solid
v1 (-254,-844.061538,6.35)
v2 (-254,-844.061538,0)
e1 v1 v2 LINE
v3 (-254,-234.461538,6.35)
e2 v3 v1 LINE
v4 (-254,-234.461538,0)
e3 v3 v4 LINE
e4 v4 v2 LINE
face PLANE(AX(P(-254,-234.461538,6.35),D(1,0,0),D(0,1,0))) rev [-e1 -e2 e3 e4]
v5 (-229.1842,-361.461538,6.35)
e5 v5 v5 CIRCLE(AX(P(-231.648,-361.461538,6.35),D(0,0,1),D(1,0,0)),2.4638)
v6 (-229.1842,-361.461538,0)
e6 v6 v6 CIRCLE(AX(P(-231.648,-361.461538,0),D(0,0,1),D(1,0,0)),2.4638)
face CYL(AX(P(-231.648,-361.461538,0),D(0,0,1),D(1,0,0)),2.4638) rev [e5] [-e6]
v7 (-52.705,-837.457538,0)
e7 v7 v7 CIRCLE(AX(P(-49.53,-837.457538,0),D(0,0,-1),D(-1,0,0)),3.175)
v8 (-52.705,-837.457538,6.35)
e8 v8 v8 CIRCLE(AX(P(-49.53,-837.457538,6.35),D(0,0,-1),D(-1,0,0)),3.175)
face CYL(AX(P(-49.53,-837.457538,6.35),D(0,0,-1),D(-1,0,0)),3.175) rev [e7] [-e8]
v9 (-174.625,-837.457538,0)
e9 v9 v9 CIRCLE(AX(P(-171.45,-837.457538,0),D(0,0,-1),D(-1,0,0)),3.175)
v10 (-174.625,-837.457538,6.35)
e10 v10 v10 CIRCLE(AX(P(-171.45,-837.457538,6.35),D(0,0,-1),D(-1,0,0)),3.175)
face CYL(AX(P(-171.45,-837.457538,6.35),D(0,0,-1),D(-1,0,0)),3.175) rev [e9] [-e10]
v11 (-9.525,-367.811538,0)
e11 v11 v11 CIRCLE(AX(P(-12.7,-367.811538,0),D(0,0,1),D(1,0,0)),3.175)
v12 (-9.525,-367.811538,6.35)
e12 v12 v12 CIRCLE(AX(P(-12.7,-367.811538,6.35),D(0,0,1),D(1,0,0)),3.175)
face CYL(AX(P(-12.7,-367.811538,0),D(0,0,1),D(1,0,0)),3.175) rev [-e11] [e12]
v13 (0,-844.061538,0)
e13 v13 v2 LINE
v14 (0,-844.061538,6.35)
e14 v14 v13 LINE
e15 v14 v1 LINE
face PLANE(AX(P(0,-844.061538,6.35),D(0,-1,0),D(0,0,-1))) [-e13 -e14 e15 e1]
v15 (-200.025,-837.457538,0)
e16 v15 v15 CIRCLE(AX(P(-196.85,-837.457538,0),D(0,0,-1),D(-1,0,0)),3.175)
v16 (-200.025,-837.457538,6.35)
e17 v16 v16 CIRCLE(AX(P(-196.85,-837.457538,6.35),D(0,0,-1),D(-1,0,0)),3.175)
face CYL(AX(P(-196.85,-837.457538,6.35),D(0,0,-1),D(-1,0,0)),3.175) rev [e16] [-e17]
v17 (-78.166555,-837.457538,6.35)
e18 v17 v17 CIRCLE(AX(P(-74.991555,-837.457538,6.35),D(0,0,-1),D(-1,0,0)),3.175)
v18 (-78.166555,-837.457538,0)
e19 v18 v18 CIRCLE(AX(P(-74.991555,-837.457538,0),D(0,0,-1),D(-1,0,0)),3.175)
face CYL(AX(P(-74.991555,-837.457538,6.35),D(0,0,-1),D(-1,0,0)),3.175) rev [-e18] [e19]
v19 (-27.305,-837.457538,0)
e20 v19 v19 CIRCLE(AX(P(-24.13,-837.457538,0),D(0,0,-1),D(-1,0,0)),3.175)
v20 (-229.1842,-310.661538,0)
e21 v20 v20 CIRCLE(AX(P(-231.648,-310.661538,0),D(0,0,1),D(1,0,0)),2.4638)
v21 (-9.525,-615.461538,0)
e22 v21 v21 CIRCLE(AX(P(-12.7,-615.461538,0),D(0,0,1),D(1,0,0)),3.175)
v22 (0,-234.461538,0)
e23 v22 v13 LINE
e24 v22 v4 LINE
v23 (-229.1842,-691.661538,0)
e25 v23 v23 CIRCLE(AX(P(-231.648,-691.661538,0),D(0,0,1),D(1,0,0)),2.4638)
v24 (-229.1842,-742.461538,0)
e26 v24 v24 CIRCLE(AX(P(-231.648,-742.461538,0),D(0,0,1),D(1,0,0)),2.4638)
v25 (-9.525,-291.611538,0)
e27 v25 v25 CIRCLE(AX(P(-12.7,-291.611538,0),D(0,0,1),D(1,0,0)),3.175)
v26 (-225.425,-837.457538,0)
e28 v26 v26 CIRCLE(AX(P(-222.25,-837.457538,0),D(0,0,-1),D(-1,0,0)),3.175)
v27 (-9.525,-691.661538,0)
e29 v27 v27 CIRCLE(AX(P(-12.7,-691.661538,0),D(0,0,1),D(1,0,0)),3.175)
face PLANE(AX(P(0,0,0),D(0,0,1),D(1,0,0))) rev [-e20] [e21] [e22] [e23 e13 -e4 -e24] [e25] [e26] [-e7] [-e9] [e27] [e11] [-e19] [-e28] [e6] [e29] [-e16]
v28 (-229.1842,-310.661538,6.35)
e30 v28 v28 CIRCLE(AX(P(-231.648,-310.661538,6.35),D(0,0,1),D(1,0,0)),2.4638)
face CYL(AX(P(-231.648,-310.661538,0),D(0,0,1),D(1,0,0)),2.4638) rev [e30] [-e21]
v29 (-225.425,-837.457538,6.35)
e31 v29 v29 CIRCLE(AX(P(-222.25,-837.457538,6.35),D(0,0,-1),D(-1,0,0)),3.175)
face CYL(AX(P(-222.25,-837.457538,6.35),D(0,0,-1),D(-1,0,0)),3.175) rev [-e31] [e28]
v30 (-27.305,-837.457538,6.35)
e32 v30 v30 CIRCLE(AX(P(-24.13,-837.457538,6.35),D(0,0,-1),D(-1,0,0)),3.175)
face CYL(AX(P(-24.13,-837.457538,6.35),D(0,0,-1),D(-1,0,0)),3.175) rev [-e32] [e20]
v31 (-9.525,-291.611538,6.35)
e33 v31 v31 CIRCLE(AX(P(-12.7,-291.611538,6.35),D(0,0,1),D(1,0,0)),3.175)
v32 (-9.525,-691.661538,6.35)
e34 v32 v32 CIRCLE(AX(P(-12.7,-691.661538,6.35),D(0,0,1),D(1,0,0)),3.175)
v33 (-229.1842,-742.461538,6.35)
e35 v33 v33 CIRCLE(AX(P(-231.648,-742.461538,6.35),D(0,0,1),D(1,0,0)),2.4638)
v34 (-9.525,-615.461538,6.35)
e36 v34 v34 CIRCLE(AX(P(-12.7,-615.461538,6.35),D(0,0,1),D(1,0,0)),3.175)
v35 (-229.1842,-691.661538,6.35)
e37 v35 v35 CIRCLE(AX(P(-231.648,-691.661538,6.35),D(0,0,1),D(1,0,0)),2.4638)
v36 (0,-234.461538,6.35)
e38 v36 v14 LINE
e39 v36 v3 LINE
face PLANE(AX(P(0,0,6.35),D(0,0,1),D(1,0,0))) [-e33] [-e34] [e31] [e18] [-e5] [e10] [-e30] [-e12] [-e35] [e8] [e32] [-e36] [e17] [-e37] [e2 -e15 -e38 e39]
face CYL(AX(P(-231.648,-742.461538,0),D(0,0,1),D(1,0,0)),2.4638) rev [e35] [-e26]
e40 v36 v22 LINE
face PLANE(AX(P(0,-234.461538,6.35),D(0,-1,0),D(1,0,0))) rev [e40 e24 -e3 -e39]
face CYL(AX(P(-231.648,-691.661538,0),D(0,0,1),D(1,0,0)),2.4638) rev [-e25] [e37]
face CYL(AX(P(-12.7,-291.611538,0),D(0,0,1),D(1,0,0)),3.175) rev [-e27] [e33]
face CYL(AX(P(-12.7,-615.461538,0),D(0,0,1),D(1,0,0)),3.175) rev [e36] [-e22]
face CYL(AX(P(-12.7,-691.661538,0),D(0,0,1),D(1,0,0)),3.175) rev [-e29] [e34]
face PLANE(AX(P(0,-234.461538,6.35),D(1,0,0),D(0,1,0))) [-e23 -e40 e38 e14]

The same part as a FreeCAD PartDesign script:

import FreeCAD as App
import Part
import Sketcher
Q = App.Units.Quantity


def add_polygon(sketch, points):
    """Adds a closed chain of lines whose ends are joined by coincident constraints."""
    first, n = sketch.GeometryCount, len(points)
    for a, b in zip(points, points[1:] + points[:1]):
        sketch.addGeometry(Part.LineSegment(App.Vector(*a, 0), App.Vector(*b, 0)), False)
    for i in range(n):
        sketch.addConstraint(Sketcher.Constraint("Coincident", first + i, 2, first + (i + 1) % n, 1))

doc = App.newDocument("Part")
params = doc.addObject("Spreadsheet::Sheet", "Params")
for row, (alias, value) in enumerate([
    ("sketch1_width", "10 in"),
    ("sketch1_height", "24 in"),
    ("pad1_length", "0.25 in"),
    ("sketch2_diameter", "0.194 in"),
    ("sketch3_diameter", "0.25 in"),
    ("pocket2_length", "0.25 in"),
    ("sketch4_diameter", "0.25 in"),
    ("pocket3_length", "0.25 in"),
], start=1):
    params.set(f"A{row}", alias)
    params.set(f"B{row}", "=" + value)
    params.setAlias(f"B{row}", alias)

body = doc.addObject("PartDesign::Body", "Body")

sketch1 = doc.addObject("Sketcher::SketchObject", "Sketch")
body.addObject(sketch1)
sketch1.AttachmentSupport = (doc.XY_Plane, [""])
sketch1.MapMode = "FlatFace"
add_polygon(sketch1, [(-254, -234), (-254, -844), (0, -844), (0, -234)])
sketch1.addConstraint([
    Sketcher.Constraint("Vertical", 0),
    Sketcher.Constraint("Horizontal", 1),
    Sketcher.Constraint("Vertical", 2),
    Sketcher.Constraint("Horizontal", 3),
    Sketcher.Constraint("PointOnObject", 1, 2, -2),
    Sketcher.Constraint("DistanceX", 1, 1, 1, 2, Q("10 in")),
    Sketcher.Constraint("DistanceY", 0, 2, 0, 1, Q("24 in")),
    Sketcher.Constraint("DistanceY", 0, 2, -1, 1, Q("844.061538 mm")),
])
sketch1.setExpression("Constraints[9]", "Params.sketch1_width")
sketch1.setExpression("Constraints[10]", "Params.sketch1_height")
pad1 = doc.addObject("PartDesign::Pad", "Pad")
body.addObject(pad1)
pad1.Profile = sketch1
pad1.setExpression("Length", "Params.pad1_length")

sketch2 = doc.addObject("Sketcher::SketchObject", "Sketch001")
body.addObject(sketch2)
sketch2.AttachmentSupport = (doc.XY_Plane, [""])
sketch2.MapMode = "FlatFace"
sketch2.AttachmentOffset = App.Placement(App.Vector(0, 0, 0.25 * 25.4), App.Rotation())
sketch2.addGeometry([
    Part.Circle(App.Vector(-231.6, -310.7, 0), App.Vector(0, 0, 1), 2.5),
    Part.Circle(App.Vector(-231.6, -361.5, 0), App.Vector(0, 0, 1), 2.5),
    Part.Circle(App.Vector(-231.6, -691.7, 0), App.Vector(0, 0, 1), 2.5),
    Part.Circle(App.Vector(-231.6, -742.5, 0), App.Vector(0, 0, 1), 2.5),
], False)
sketch2.addConstraint([
    Sketcher.Constraint("Equal", 0, 1),
    Sketcher.Constraint("Equal", 1, 2),
    Sketcher.Constraint("Equal", 2, 3),
    Sketcher.Constraint("Vertical", 0, 3, 1, 3),
    Sketcher.Constraint("Vertical", 1, 3, 2, 3),
    Sketcher.Constraint("Vertical", 2, 3, 3, 3),
    Sketcher.Constraint("Diameter", 0, Q("0.194 in")),
    Sketcher.Constraint("DistanceY", 1, 3, 0, 3, Q("2 in")),
    Sketcher.Constraint("DistanceY", 2, 3, 1, 3, Q("13 in")),
    Sketcher.Constraint("DistanceY", 3, 3, 2, 3, Q("2 in")),
    Sketcher.Constraint("DistanceX", 0, 3, -1, 1, Q("9.12 in")),
    Sketcher.Constraint("DistanceY", 0, 3, -1, 1, Q("310.661538 mm")),
])
sketch2.setExpression("Constraints[6]", "Params.sketch2_diameter")
pocket1 = doc.addObject("PartDesign::Pocket", "Pocket")
body.addObject(pocket1)
pocket1.Profile = sketch2
pocket1.Type = "ThroughAll"

sketch3 = doc.addObject("Sketcher::SketchObject", "Sketch002")
body.addObject(sketch3)
sketch3.AttachmentSupport = (doc.XY_Plane, [""])
sketch3.MapMode = "FlatFace"
sketch3.addGeometry([
    Part.Circle(App.Vector(-24.1, -837.5, 0), App.Vector(0, 0, 1), 3.2),
    Part.Circle(App.Vector(-49.5, -837.5, 0), App.Vector(0, 0, 1), 3.2),
    Part.Circle(App.Vector(-75, -837.5, 0), App.Vector(0, 0, 1), 3.2),
    Part.Circle(App.Vector(-196.8, -837.5, 0), App.Vector(0, 0, 1), 3.2),
    Part.Circle(App.Vector(-171.4, -837.5, 0), App.Vector(0, 0, 1), 3.2),
    Part.Circle(App.Vector(-222.2, -837.5, 0), App.Vector(0, 0, 1), 3.2),
], False)
sketch3.addConstraint([
    Sketcher.Constraint("Equal", 0, 1),
    Sketcher.Constraint("Equal", 1, 2),
    Sketcher.Constraint("Equal", 2, 3),
    Sketcher.Constraint("Equal", 3, 4),
    Sketcher.Constraint("Equal", 4, 5),
    Sketcher.Constraint("Horizontal", 0, 3, 1, 3),
    Sketcher.Constraint("Horizontal", 1, 3, 2, 3),
    Sketcher.Constraint("Horizontal", 2, 3, 3, 3),
    Sketcher.Constraint("Horizontal", 3, 3, 4, 3),
    Sketcher.Constraint("Horizontal", 4, 3, 5, 3),
    Sketcher.Constraint("Diameter", 0, Q("0.25 in")),
    Sketcher.Constraint("DistanceX", 1, 3, 0, 3, Q("1 in")),
    Sketcher.Constraint("DistanceX", 3, 3, 4, 3, Q("1 in")),
    Sketcher.Constraint("DistanceX", 5, 3, 3, 3, Q("1 in")),
    Sketcher.Constraint("DistanceX", 3, 3, 1, 3, Q("5.8 in")),
    Sketcher.Constraint("DistanceX", 0, 3, -1, 1, Q("0.95 in")),
    Sketcher.Constraint("DistanceY", 0, 3, -1, 1, Q("837.457538 mm")),
    Sketcher.Constraint("DistanceX", 2, 3, -1, 1, Q("74.991555 mm")),
])
sketch3.setExpression("Constraints[10]", "Params.sketch3_diameter")
pocket2 = doc.addObject("PartDesign::Pocket", "Pocket001")
body.addObject(pocket2)
pocket2.Profile = sketch3
pocket2.setExpression("Length", "Params.pocket2_length")
pocket2.Reversed = True

sketch4 = doc.addObject("Sketcher::SketchObject", "Sketch003")
body.addObject(sketch4)
sketch4.AttachmentSupport = (doc.XY_Plane, [""])
sketch4.MapMode = "FlatFace"
sketch4.AttachmentOffset = App.Placement(App.Vector(0, 0, 0.25 * 25.4), App.Rotation())
sketch4.addGeometry([
    Part.Circle(App.Vector(-12.7, -291.6, 0), App.Vector(0, 0, 1), 3.2),
    Part.Circle(App.Vector(-12.7, -367.8, 0), App.Vector(0, 0, 1), 3.2),
    Part.Circle(App.Vector(-12.7, -691.7, 0), App.Vector(0, 0, 1), 3.2),
    Part.Circle(App.Vector(-12.7, -615.5, 0), App.Vector(0, 0, 1), 3.2),
], False)
sketch4.addConstraint([
    Sketcher.Constraint("Equal", 0, 1),
    Sketcher.Constraint("Equal", 1, 2),
    Sketcher.Constraint("Equal", 2, 3),
    Sketcher.Constraint("Vertical", 0, 3, 1, 3),
    Sketcher.Constraint("Vertical", 1, 3, 2, 3),
    Sketcher.Constraint("Vertical", 2, 3, 3, 3),
    Sketcher.Constraint("Diameter", 0, Q("0.25 in")),
    Sketcher.Constraint("DistanceY", 1, 3, 0, 3, Q("3 in")),
    Sketcher.Constraint("DistanceY", 2, 3, 3, 3, Q("3 in")),
    Sketcher.Constraint("DistanceX", 0, 3, -1, 1, Q("0.5 in")),
    Sketcher.Constraint("DistanceY", 2, 3, 1, 3, Q("12.75 in")),
    Sketcher.Constraint("DistanceY", 0, 3, -1, 1, Q("291.611538 mm")),
])
sketch4.setExpression("Constraints[6]", "Params.sketch4_diameter")
pocket3 = doc.addObject("PartDesign::Pocket", "Pocket002")
body.addObject(pocket3)
pocket3.Profile = sketch4
pocket3.setExpression("Length", "Params.pocket3_length")

doc.recompute()
